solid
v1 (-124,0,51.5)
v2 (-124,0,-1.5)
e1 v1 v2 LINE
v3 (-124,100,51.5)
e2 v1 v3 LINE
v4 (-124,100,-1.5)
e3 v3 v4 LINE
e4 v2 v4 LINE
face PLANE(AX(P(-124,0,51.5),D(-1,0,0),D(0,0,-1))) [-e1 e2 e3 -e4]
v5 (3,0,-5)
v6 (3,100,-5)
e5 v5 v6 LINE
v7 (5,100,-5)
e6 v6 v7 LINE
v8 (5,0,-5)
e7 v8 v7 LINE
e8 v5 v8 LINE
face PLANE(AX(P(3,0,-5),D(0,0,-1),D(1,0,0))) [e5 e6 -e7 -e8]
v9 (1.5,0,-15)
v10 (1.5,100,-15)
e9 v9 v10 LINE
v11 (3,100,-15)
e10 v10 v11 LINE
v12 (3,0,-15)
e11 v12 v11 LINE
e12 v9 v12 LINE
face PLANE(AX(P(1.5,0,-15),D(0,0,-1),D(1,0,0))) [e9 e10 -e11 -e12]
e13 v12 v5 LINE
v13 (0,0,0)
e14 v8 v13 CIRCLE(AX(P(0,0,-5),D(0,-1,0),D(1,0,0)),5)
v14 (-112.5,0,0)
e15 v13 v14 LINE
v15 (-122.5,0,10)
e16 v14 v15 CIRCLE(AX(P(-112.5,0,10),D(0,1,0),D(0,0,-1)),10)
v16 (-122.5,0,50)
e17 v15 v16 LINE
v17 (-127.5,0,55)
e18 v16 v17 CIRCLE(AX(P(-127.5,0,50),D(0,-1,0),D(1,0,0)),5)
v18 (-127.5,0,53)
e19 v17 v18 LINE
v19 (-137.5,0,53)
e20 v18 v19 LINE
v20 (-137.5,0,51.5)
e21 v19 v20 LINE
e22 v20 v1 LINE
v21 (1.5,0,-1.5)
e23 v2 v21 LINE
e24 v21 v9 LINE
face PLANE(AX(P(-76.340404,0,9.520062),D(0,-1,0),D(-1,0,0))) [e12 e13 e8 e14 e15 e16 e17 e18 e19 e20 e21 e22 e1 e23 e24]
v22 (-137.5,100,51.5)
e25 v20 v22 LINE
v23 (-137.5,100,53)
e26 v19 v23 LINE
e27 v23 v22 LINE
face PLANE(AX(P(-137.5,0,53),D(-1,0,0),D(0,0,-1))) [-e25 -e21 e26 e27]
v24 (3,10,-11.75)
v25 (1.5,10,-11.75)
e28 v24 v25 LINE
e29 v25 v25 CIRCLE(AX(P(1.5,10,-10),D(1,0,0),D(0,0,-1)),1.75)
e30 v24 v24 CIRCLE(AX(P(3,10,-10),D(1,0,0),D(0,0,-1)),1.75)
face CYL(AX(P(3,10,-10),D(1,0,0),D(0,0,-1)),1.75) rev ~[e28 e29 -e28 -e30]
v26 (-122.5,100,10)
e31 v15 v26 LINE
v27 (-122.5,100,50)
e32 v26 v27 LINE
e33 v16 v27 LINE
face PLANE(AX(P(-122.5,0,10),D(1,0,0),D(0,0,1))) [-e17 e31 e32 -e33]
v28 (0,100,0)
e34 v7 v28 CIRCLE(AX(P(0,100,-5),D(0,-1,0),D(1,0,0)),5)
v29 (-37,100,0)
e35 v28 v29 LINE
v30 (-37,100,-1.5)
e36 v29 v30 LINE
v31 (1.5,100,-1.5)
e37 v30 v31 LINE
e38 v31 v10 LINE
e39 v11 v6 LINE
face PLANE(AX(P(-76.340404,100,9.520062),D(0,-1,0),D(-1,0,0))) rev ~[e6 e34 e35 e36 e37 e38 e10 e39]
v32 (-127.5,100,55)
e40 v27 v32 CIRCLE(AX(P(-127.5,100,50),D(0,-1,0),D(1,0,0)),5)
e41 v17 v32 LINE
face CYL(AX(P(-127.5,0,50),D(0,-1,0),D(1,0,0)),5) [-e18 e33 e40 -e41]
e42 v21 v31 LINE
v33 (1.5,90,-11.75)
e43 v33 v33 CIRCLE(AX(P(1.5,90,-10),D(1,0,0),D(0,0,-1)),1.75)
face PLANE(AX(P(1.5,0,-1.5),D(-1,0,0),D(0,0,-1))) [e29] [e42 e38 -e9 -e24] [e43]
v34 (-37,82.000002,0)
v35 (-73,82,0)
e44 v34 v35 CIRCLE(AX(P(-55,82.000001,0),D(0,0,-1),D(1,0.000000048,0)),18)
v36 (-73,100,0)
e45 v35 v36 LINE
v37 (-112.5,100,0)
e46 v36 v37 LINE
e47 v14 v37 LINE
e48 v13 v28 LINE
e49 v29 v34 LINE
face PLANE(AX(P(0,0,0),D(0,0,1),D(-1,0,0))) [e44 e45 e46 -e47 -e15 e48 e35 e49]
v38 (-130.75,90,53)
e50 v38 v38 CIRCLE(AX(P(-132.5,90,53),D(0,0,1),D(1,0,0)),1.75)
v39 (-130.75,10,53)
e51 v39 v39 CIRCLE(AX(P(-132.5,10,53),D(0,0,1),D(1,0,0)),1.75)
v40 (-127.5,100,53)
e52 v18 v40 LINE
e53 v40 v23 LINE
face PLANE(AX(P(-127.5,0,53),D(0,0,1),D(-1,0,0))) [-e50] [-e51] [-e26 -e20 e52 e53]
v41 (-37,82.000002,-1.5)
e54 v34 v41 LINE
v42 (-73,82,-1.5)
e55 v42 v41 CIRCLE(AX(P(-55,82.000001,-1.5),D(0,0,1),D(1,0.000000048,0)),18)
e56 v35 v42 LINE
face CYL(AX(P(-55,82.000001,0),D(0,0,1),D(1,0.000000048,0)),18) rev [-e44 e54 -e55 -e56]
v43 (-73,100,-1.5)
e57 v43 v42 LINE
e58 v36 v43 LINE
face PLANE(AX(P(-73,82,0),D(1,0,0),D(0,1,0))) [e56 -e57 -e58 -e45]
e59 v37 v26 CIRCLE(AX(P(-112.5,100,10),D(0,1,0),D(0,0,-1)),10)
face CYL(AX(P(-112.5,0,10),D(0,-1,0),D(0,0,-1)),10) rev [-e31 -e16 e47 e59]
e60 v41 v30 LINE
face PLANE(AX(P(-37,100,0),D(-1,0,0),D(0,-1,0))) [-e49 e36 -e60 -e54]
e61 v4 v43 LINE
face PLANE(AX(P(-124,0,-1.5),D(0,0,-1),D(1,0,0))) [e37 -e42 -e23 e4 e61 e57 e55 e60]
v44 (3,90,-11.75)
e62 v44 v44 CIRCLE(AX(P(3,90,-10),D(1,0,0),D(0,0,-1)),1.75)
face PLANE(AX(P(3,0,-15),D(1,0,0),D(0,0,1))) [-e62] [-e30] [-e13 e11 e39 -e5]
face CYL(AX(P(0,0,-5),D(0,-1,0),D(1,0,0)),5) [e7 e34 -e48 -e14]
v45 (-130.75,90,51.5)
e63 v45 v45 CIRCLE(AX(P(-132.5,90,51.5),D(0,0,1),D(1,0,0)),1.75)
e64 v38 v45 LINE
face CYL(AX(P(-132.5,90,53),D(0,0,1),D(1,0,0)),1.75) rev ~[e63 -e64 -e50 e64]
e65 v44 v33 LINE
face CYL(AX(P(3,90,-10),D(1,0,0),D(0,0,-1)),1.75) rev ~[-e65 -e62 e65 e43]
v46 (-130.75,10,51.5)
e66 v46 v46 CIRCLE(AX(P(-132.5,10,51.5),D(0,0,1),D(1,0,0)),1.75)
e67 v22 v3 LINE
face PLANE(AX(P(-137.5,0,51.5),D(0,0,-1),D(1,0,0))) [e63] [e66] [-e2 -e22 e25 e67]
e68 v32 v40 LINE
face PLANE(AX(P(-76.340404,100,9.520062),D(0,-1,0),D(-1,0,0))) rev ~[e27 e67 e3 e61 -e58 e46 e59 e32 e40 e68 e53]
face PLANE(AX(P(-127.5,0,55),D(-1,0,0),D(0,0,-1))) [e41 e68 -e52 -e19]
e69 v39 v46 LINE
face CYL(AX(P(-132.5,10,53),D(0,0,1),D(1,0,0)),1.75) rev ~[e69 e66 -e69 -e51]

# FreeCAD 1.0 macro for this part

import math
import FreeCAD as App
import Part
import Sketcher

V = App.Vector

doc = App.newDocument("Part")
params = doc.addObject("Spreadsheet::Sheet", "Params")
for row, (alias, value) in enumerate([
    ("sketch1_radius", "5 mm"),
    ("sketch1_radius2", "10 mm"),
    ("sketch1_width", "2 mm"),
    ("sketch1_width2", "10 mm"),
    ("sketch1_height", "53 mm"),
    ("pad1_length", "100 mm"),
    ("sketch2_radius", "18 mm"),
    ("sketch2_height", "18 mm"),
    ("pocket1_length", "10 mm"),
    ("sketch3_diameter", "3.5 mm"),
    ("pocket2_length", "10 mm"),
    ("sketch4_diameter", "3.5 mm"),
    ("pocket3_length", "10 mm"),
], start=1):
    params.set(f"A{row}", alias)
    params.set(f"B{row}", "=" + value)
    params.setAlias(f"B{row}", alias)

body = doc.addObject("PartDesign::Body", "Body")

sketch1 = body.newObject("Sketcher::SketchObject", "Sketch")
sketch1.AttachmentSupport = (doc.getObject("XZ_Plane"), [""])
sketch1.MapMode = "FlatFace"
sketch1.addGeometry([
    Part.LineSegment(V(-112.5, 0, 0), V(0, 0, 0)),
    Part.ArcOfCircle(Part.Circle(V(0, -5, 0), V(0, 0, 1), 5), math.radians(0), math.radians(90)),
    Part.LineSegment(V(5, -5, 0), V(3, -5, 0)),
    Part.LineSegment(V(3, -5, 0), V(3, -15, 0)),
    Part.LineSegment(V(3, -15, 0), V(1.5, -15, 0)),
    Part.LineSegment(V(1.5, -15, 0), V(1.5, -1.5, 0)),
    Part.LineSegment(V(1.5, -1.5, 0), V(-124, -1.5, 0)),
    Part.LineSegment(V(-124, -1.5, 0), V(-124, 51.5, 0)),
    Part.LineSegment(V(-124, 51.5, 0), V(-137.5, 51.5, 0)),
    Part.LineSegment(V(-137.5, 51.5, 0), V(-137.5, 53, 0)),
    Part.LineSegment(V(-137.5, 53, 0), V(-127.5, 53, 0)),
    Part.LineSegment(V(-127.5, 53, 0), V(-127.5, 55, 0)),
    Part.ArcOfCircle(Part.Circle(V(-127.5, 50, 0), V(0, 0, 1), 5), math.radians(0), math.radians(90)),
    Part.LineSegment(V(-122.5, 50, 0), V(-122.5, 10, 0)),
    Part.ArcOfCircle(Part.Circle(V(-112.5, 10, 0), V(0, 0, 1), 10), math.radians(180), math.radians(270)),
], False)
sketch1.addConstraint([
    Sketcher.Constraint("Tangent", 0, 2, 1, 2),
    Sketcher.Constraint("Coincident", 1, 1, 2, 1),
    Sketcher.Constraint("Coincident", 2, 2, 3, 1),
    Sketcher.Constraint("Coincident", 3, 2, 4, 1),
    Sketcher.Constraint("Coincident", 4, 2, 5, 1),
    Sketcher.Constraint("Coincident", 5, 2, 6, 1),
    Sketcher.Constraint("Coincident", 6, 2, 7, 1),
    Sketcher.Constraint("Coincident", 7, 2, 8, 1),
    Sketcher.Constraint("Coincident", 8, 2, 9, 1),
    Sketcher.Constraint("Coincident", 9, 2, 10, 1),
    Sketcher.Constraint("Coincident", 10, 2, 11, 1),
    Sketcher.Constraint("Coincident", 11, 2, 12, 2),
    Sketcher.Constraint("Tangent", 12, 1, 13, 1),
    Sketcher.Constraint("Tangent", 13, 2, 14, 1),
    Sketcher.Constraint("Tangent", 14, 2, 0, 1),
    Sketcher.Constraint("Horizontal", 0),
    Sketcher.Constraint("Horizontal", 2),
    Sketcher.Constraint("Vertical", 3),
    Sketcher.Constraint("Horizontal", 4),
    Sketcher.Constraint("Vertical", 5),
    Sketcher.Constraint("Horizontal", 6),
    Sketcher.Constraint("Vertical", 7),
    Sketcher.Constraint("Horizontal", 8),
    Sketcher.Constraint("Vertical", 9),
    Sketcher.Constraint("Horizontal", 10),
    Sketcher.Constraint("Vertical", 11),
    Sketcher.Constraint("Vertical", 13),
    Sketcher.Constraint("Coincident", 0, 2, -1, 1),
    Sketcher.Constraint("Equal", 1, 12),
    Sketcher.Constraint("Vertical", 12, 3, 10, 2),
    Sketcher.Constraint("Equal", 10, 3),
    Sketcher.Constraint("Equal", 8, 5),
    Sketcher.Constraint("Equal", 4, 9),
    Sketcher.Constraint("Equal", 2, 11),
    Sketcher.Constraint("Radius", 1, 5.0),
    Sketcher.Constraint("Radius", 14, 10.0),
    Sketcher.Constraint("DistanceX", 2, 2, 2, 1, 2.0),
    Sketcher.Constraint("DistanceX", 10, 1, 10, 2, 10.0),
    Sketcher.Constraint("DistanceY", 7, 1, 7, 2, 53.0),
    Sketcher.Constraint("DistanceY", 13, 2, 13, 1, 40.0),
    Sketcher.Constraint("DistanceX", 0, 1, 0, 2, 112.5),
    Sketcher.Constraint("DistanceX", 4, 2, 4, 1, 1.5),
    Sketcher.Constraint("DistanceX", 6, 2, 6, 1, 125.5),
])
sketch1.setExpression("Constraints[34]", "Params.sketch1_radius")
sketch1.setExpression("Constraints[35]", "Params.sketch1_radius2")
sketch1.setExpression("Constraints[36]", "Params.sketch1_width")
sketch1.setExpression("Constraints[37]", "Params.sketch1_width2")
sketch1.setExpression("Constraints[38]", "Params.sketch1_height")
pad1 = body.newObject("PartDesign::Pad", "Pad")
pad1.Profile = sketch1
pad1.setExpression("Length", "Params.pad1_length")
pad1.Reversed = True

sketch2 = body.newObject("Sketcher::SketchObject", "Sketch001")
sketch2.AttachmentSupport = (doc.getObject("XY_Plane"), [""])
sketch2.MapMode = "FlatFace"
sketch2.addGeometry([
    Part.LineSegment(V(-37, 100, 0), V(-73, 100, 0)),
    Part.LineSegment(V(-73, 100, 0), V(-73, 82, 0)),
    Part.ArcOfCircle(Part.Circle(V(-55, 82.000001, 0), V(0, 0, 1), 18), math.radians(-179.999997), math.radians(0.000003)),
    Part.LineSegment(V(-37, 82.000002, 0), V(-37, 100, 0)),
], False)
sketch2.addConstraint([
    Sketcher.Constraint("Coincident", 0, 2, 1, 1),
    Sketcher.Constraint("Tangent", 1, 2, 2, 1),
    Sketcher.Constraint("Tangent", 2, 2, 3, 1),
    Sketcher.Constraint("Coincident", 3, 2, 0, 1),
    Sketcher.Constraint("Horizontal", 0),
    Sketcher.Constraint("Vertical", 1),
    Sketcher.Constraint("Vertical", 3),
    Sketcher.Constraint("Radius", 2, 18.0),
    Sketcher.Constraint("DistanceY", 1, 2, 1, 1, 18.0),
    Sketcher.Constraint("DistanceX", 2, 3, -1, 1, 55.0),
    Sketcher.Constraint("DistanceY", -1, 1, 2, 3, 82.000001),
])
sketch2.setExpression("Constraints[7]", "Params.sketch2_radius")
sketch2.setExpression("Constraints[8]", "Params.sketch2_height")
pocket1 = body.newObject("PartDesign::Pocket", "Pocket")
pocket1.Profile = sketch2
pocket1.setExpression("Length", "Params.pocket1_length")

sketch3 = body.newObject("Sketcher::SketchObject", "Sketch002")
sketch3.AttachmentSupport = (doc.getObject("YZ_Plane"), [""])
sketch3.MapMode = "FlatFace"
sketch3.AttachmentOffset = App.Placement(V(0, 0, 3), App.Rotation())
sketch3.addGeometry([
    Part.Circle(V(90, -10, 0), V(0, 0, 1), 1.75),
    Part.Circle(V(10, -10, 0), V(0, 0, 1), 1.75),
], False)
sketch3.addConstraint([
    Sketcher.Constraint("Equal", 0, 1),
    Sketcher.Constraint("Horizontal", 0, 3, 1, 3),
    Sketcher.Constraint("Diameter", 0, 3.5),
    Sketcher.Constraint("DistanceX", -1, 1, 0, 3, 90.0),
    Sketcher.Constraint("DistanceY", 0, 3, -1, 1, 10.0),
    Sketcher.Constraint("DistanceX", -1, 1, 1, 3, 10.0),
])
sketch3.setExpression("Constraints[2]", "Params.sketch3_diameter")
pocket2 = body.newObject("PartDesign::Pocket", "Pocket001")
pocket2.Profile = sketch3
pocket2.setExpression("Length", "Params.pocket2_length")

sketch4 = body.newObject("Sketcher::SketchObject", "Sketch003")
sketch4.AttachmentSupport = (doc.getObject("XY_Plane"), [""])
sketch4.MapMode = "FlatFace"
sketch4.AttachmentOffset = App.Placement(V(0, 0, 53), App.Rotation())
sketch4.addGeometry([
    Part.Circle(V(-132.5, 90, 0), V(0, 0, 1), 1.75),
    Part.Circle(V(-132.5, 10, 0), V(0, 0, 1), 1.75),
], False)
sketch4.addConstraint([
    Sketcher.Constraint("Equal", 0, 1),
    Sketcher.Constraint("Vertical", 0, 3, 1, 3),
    Sketcher.Constraint("Diameter", 0, 3.5),
    Sketcher.Constraint("DistanceY", -1, 1, 0, 3, 90.0),
    Sketcher.Constraint("DistanceY", -1, 1, 1, 3, 10.0),
    Sketcher.Constraint("DistanceX", 0, 3, -1, 1, 132.5),
])
sketch4.setExpression("Constraints[2]", "Params.sketch4_diameter")
pocket3 = body.newObject("PartDesign::Pocket", "Pocket002")
pocket3.Profile = sketch4
pocket3.setExpression("Length", "Params.pocket3_length")

doc.recompute()
